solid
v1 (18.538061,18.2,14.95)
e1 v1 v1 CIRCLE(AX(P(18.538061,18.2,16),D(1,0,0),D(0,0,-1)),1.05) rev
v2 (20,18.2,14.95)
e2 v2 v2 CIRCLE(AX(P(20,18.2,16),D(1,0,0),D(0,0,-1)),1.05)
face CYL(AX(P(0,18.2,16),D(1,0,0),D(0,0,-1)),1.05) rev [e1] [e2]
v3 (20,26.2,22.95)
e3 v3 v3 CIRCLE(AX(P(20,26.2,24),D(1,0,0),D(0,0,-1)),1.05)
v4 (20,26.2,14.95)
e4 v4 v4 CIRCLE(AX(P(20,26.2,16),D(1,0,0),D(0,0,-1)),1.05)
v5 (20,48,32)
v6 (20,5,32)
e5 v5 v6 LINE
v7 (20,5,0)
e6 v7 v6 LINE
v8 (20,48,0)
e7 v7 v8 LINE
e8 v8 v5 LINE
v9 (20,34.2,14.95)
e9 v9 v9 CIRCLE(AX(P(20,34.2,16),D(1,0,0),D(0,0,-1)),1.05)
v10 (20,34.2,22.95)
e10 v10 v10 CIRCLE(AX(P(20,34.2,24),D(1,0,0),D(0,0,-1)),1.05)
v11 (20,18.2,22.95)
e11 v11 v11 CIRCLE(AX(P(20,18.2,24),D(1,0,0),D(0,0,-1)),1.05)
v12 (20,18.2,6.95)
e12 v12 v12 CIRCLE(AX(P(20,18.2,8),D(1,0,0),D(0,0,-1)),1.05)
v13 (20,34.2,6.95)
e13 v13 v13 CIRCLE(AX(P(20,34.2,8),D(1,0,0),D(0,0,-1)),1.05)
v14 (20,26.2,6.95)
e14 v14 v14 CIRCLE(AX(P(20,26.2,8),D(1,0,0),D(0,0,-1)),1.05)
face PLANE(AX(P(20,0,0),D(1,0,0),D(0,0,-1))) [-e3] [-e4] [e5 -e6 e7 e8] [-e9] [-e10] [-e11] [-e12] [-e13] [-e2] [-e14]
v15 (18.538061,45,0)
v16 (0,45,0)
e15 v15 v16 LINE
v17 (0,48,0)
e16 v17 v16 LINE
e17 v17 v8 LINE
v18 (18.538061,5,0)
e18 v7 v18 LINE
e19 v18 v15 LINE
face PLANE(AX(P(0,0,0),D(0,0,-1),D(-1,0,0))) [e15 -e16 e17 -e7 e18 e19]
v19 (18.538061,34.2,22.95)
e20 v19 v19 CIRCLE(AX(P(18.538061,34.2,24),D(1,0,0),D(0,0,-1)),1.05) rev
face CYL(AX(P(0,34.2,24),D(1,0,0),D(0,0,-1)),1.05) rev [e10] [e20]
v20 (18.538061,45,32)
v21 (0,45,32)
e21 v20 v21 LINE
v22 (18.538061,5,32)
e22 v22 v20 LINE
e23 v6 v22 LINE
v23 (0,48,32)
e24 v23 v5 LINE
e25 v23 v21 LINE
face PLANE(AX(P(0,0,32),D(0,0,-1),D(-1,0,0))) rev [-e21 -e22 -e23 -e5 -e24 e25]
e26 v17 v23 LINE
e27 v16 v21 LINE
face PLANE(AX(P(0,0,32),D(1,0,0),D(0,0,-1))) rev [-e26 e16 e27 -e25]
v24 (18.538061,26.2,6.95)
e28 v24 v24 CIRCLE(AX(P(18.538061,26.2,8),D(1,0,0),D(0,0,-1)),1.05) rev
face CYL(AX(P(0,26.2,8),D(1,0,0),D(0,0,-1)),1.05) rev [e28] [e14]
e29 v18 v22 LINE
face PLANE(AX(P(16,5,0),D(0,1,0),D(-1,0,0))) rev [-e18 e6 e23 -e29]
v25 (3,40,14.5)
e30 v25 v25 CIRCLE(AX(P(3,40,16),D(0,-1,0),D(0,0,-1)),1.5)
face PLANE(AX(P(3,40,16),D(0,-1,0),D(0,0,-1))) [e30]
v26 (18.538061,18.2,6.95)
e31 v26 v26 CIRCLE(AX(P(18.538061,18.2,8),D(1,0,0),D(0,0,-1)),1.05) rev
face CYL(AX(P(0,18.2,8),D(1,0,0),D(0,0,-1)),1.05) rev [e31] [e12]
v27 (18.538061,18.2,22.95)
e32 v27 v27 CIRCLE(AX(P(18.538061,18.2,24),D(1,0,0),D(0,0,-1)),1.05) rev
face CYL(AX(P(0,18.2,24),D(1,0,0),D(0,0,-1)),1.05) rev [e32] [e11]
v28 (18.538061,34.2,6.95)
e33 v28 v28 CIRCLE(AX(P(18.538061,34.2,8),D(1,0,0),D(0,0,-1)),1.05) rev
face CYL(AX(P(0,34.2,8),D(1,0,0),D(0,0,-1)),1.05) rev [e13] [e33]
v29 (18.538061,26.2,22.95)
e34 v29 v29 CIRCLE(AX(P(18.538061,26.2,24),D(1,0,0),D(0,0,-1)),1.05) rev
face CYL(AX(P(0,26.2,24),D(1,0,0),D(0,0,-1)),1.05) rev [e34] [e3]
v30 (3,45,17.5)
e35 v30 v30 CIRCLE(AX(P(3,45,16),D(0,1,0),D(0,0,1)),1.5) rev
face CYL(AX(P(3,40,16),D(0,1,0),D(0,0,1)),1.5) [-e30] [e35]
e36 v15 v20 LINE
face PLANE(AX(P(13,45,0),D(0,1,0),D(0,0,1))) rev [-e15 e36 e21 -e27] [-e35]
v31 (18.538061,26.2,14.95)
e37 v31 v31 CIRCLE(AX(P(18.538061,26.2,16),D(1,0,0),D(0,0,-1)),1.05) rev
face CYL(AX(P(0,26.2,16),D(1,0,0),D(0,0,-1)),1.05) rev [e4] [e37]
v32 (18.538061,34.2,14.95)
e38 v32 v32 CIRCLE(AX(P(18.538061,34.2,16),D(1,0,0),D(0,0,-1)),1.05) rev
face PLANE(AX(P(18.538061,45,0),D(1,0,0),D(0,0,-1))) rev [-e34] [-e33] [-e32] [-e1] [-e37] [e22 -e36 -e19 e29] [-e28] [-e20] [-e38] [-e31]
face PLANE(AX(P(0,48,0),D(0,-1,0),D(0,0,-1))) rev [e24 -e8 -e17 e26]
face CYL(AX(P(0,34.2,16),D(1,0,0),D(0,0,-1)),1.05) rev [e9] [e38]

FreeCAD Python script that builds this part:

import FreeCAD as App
import Part
import Sketcher


def add_polygon(sketch, points):
    """Adds a closed chain of lines whose ends are joined by coincident constraints."""
    first, n = sketch.GeometryCount, len(points)
    for a, b in zip(points, points[1:] + points[:1]):
        sketch.addGeometry(Part.LineSegment(App.Vector(*a, 0), App.Vector(*b, 0)), False)
    for i in range(n):
        sketch.addConstraint(Sketcher.Constraint("Coincident", first + i, 2, first + (i + 1) % n, 1))

doc = App.newDocument("Part")
body = doc.addObject("PartDesign::Body", "Body")

# Sketch on XY plane
sketch1 = body.newObject("Sketcher::SketchObject", "Sketch")
sketch1.AttachmentSupport = (doc.getObject("XY_Plane"), [""])
sketch1.MapMode = "FlatFace"
add_polygon(sketch1, [(0, 40), (0, 0), (15, 0), (15, 40)])  # lines 0-3
sketch1.addConstraint([
    Sketcher.Constraint("Vertical", 0),
    Sketcher.Constraint("Horizontal", 1),
    Sketcher.Constraint("Vertical", 2),
    Sketcher.Constraint("Horizontal", 3),
    Sketcher.Constraint("Coincident", 0, 2, -1, 1),
    Sketcher.Constraint("DistanceX", 1, 1, 1, 2, 15.0),
    Sketcher.Constraint("DistanceY", 0, 2, 0, 1, 40.0),
])
pad1 = body.newObject("PartDesign::Pad", "Pad")
pad1.Profile = sketch1
pad1.Length = 32

# Sketch on XZ plane
sketch2 = body.newObject("Sketcher::SketchObject", "Sketch001")
sketch2.AttachmentSupport = (doc.getObject("XZ_Plane"), [""])
sketch2.MapMode = "FlatFace"
sketch2.AttachmentOffset = App.Placement(App.Vector(0, 0, -40), App.Rotation())
add_polygon(sketch2, [(0, 0), (0, 32), (15, 32), (15, 0)])  # lines 0-3
sketch2.addConstraint([
    Sketcher.Constraint("Vertical", 0),
    Sketcher.Constraint("Horizontal", 1),
    Sketcher.Constraint("Vertical", 2),
    Sketcher.Constraint("Horizontal", 3),
    Sketcher.Constraint("Coincident", 3, 2, -1, 1),
    Sketcher.Constraint("DistanceX", 1, 1, 1, 2, 15.0),
    Sketcher.Constraint("DistanceY", 0, 1, 0, 2, 32.0),
])
pad2 = body.newObject("PartDesign::Pad", "Pad001")
pad2.Profile = sketch2
pad2.Length = 10
pad2.Reversed = True

# Sketch on XY plane
sketch3 = body.newObject("Sketcher::SketchObject", "Sketch002")
sketch3.AttachmentSupport = (doc.getObject("XY_Plane"), [""])
sketch3.MapMode = "FlatFace"
sketch3.AttachmentOffset = App.Placement(App.Vector(0, 0, 32), App.Rotation())
add_polygon(sketch3, [(0, 45), (0, 0), (13, 0), (13, 45)])  # lines 0-3
sketch3.addConstraint([
    Sketcher.Constraint("Vertical", 0),
    Sketcher.Constraint("Horizontal", 1),
    Sketcher.Constraint("Vertical", 2),
    Sketcher.Constraint("Horizontal", 3),
    Sketcher.Constraint("Coincident", 0, 2, -1, 1),
    Sketcher.Constraint("DistanceX", 1, 1, 1, 2, 13.0),
    Sketcher.Constraint("DistanceY", 0, 2, 0, 1, 45.0),
])
pocket1 = body.newObject("PartDesign::Pocket", "Pocket")
pocket1.Profile = sketch3
pocket1.Type = "ThroughAll"

# Sketch on YZ plane
sketch4 = body.newObject("Sketcher::SketchObject", "Sketch003")
sketch4.AttachmentSupport = (doc.getObject("YZ_Plane"), [""])
sketch4.MapMode = "FlatFace"
sketch4.AttachmentOffset = App.Placement(App.Vector(0, 0, 15), App.Rotation())
add_polygon(sketch4, [(50, 32), (0, 32), (0, 0), (50, 0)])  # lines 0-3
sketch4.addConstraint([
    Sketcher.Constraint("Horizontal", 0),
    Sketcher.Constraint("Vertical", 1),
    Sketcher.Constraint("Horizontal", 2),
    Sketcher.Constraint("Vertical", 3),
    Sketcher.Constraint("Coincident", 1, 2, -1, 1),
    Sketcher.Constraint("DistanceX", 0, 2, 0, 1, 50.0),
    Sketcher.Constraint("DistanceY", 1, 2, 1, 1, 32.0),
])
pad3 = body.newObject("PartDesign::Pad", "Pad002")
pad3.Profile = sketch4
pad3.Length = 5

# Sketch on XY plane
sketch5 = body.newObject("Sketcher::SketchObject", "Sketch004")
sketch5.AttachmentSupport = (doc.getObject("XY_Plane"), [""])
sketch5.MapMode = "FlatFace"
sketch5.AttachmentOffset = App.Placement(App.Vector(0, 0, 32), App.Rotation())
add_polygon(sketch5, [(13, 45), (13, 5), (16, 5), (16, 45)])  # lines 0-3
sketch5.addConstraint([
    Sketcher.Constraint("Vertical", 0),
    Sketcher.Constraint("Horizontal", 1),
    Sketcher.Constraint("Vertical", 2),
    Sketcher.Constraint("Horizontal", 3),
    Sketcher.Constraint("DistanceX", 1, 1, 1, 2, 3.0),
    Sketcher.Constraint("DistanceY", 0, 2, 0, 1, 40.0),
    Sketcher.Constraint("DistanceX", -1, 1, 0, 2, 13.0),
    Sketcher.Constraint("DistanceY", -1, 1, 0, 2, 5.0),
])
pocket2 = body.newObject("PartDesign::Pocket", "Pocket001")
pocket2.Profile = sketch5
pocket2.Type = "ThroughAll"

# Sketch on XY plane
sketch6 = body.newObject("Sketcher::SketchObject", "Sketch005")
sketch6.AttachmentSupport = (doc.getObject("XY_Plane"), [""])
sketch6.MapMode = "FlatFace"
sketch6.AttachmentOffset = App.Placement(App.Vector(0, 0, 32), App.Rotation())
add_polygon(sketch6, [(13, 5), (13, 0), (16, 0), (16, 5)])  # lines 0-3
sketch6.addConstraint([
    Sketcher.Constraint("Vertical", 0),
    Sketcher.Constraint("Horizontal", 1),
    Sketcher.Constraint("Vertical", 2),
    Sketcher.Constraint("Horizontal", 3),
    Sketcher.Constraint("PointOnObject", 0, 2, -1),
    Sketcher.Constraint("DistanceX", 1, 1, 1, 2, 3.0),
    Sketcher.Constraint("DistanceY", 0, 2, 0, 1, 5.0),
    Sketcher.Constraint("DistanceX", -1, 1, 0, 2, 13.0),
])
pocket3 = body.newObject("PartDesign::Pocket", "Pocket002")
pocket3.Profile = sketch6
pocket3.Type = "ThroughAll"

# Sketch on XZ plane
sketch7 = body.newObject("Sketcher::SketchObject", "Sketch006")
sketch7.AttachmentSupport = (doc.getObject("XZ_Plane"), [""])
sketch7.MapMode = "FlatFace"
sketch7.AttachmentOffset = App.Placement(App.Vector(0, 0, -45), App.Rotation())
sketch7.addGeometry(Part.Circle(App.Vector(3, 16, 0), App.Vector(0, 0, 1), 1.5), False)
sketch7.addConstraint([
    Sketcher.Constraint("Diameter", 0, 3.0),
    Sketcher.Constraint("DistanceX", -1, 1, 0, 3, 3.0),
    Sketcher.Constraint("DistanceY", -1, 1, 0, 3, 16.0),
])
pad4 = body.newObject("PartDesign::Pad", "Pad003")
pad4.Profile = sketch7
pad4.Length = 5

# Sketch on YZ plane
sketch8 = body.newObject("Sketcher::SketchObject", "Sketch007")
sketch8.AttachmentSupport = (doc.getObject("YZ_Plane"), [""])
sketch8.MapMode = "FlatFace"
sketch8.AttachmentOffset = App.Placement(App.Vector(0, 0, 20), App.Rotation())
sketch8.addGeometry([
    Part.Circle(App.Vector(34.2, 24, 0), App.Vector(0, 0, 1), 1.1),  # 0
    Part.Circle(App.Vector(26.2, 24, 0), App.Vector(0, 0, 1), 1.1),  # 1
    Part.Circle(App.Vector(18.2, 24, 0), App.Vector(0, 0, 1), 1.1),  # 2
    Part.Circle(App.Vector(34.2, 16, 0), App.Vector(0, 0, 1), 1.1),  # 3
    Part.Circle(App.Vector(26.2, 16, 0), App.Vector(0, 0, 1), 1.1),  # 4
    Part.Circle(App.Vector(18.2, 16, 0), App.Vector(0, 0, 1), 1.1),  # 5
    Part.Circle(App.Vector(18.2, 8, 0), App.Vector(0, 0, 1), 1.1),  # 6
    Part.Circle(App.Vector(26.2, 8, 0), App.Vector(0, 0, 1), 1.1),  # 7
    Part.Circle(App.Vector(34.2, 8, 0), App.Vector(0, 0, 1), 1.1),  # 8
], False)
sketch8.addConstraint([
    Sketcher.Constraint("Equal", 0, 1),
    Sketcher.Constraint("Equal", 1, 2),
    Sketcher.Constraint("Equal", 2, 3),
    Sketcher.Constraint("Equal", 3, 4),
    Sketcher.Constraint("Equal", 4, 5),
    Sketcher.Constraint("Equal", 5, 6),
    Sketcher.Constraint("Equal", 6, 7),
    Sketcher.Constraint("Equal", 7, 8),
    Sketcher.Constraint("Horizontal", 0, 3, 1, 3),
    Sketcher.Constraint("Horizontal", 1, 3, 2, 3),
    Sketcher.Constraint("Horizontal", 3, 3, 4, 3),
    Sketcher.Constraint("Horizontal", 4, 3, 5, 3),
    Sketcher.Constraint("Horizontal", 6, 3, 7, 3),
    Sketcher.Constraint("Horizontal", 7, 3, 8, 3),
    Sketcher.Constraint("Vertical", 0, 3, 3, 3),
    Sketcher.Constraint("Vertical", 1, 3, 4, 3),
    Sketcher.Constraint("Vertical", 2, 3, 5, 3),
    Sketcher.Constraint("Vertical", 5, 3, 6, 3),
    Sketcher.Constraint("Vertical", 4, 3, 7, 3),
    Sketcher.Constraint("Vertical", 3, 3, 8, 3),
    Sketcher.Constraint("Diameter", 0, 2.1),
    Sketcher.Constraint("DistanceY", -1, 1, 0, 3, 24.0),
    Sketcher.Constraint("DistanceY", -1, 1, 3, 3, 16.0),
    Sketcher.Constraint("DistanceY", -1, 1, 6, 3, 8.0),
    Sketcher.Constraint("DistanceX", 1, 3, 0, 3, 8.0),
    Sketcher.Constraint("DistanceX", 2, 3, 1, 3, 8.0),
    Sketcher.Constraint("DistanceX", -1, 1, 0, 3, 34.2),
])
pocket4 = body.newObject("PartDesign::Pocket", "Pocket003")
pocket4.Profile = sketch8
pocket4.Type = "ThroughAll"

# Sketch on XY plane
sketch9 = body.newObject("Sketcher::SketchObject", "Sketch008")
sketch9.AttachmentSupport = (doc.getObject("XY_Plane"), [""])
sketch9.MapMode = "FlatFace"
sketch9.AttachmentOffset = App.Placement(App.Vector(0, 0, 32), App.Rotation())
add_polygon(sketch9, [(16, 5), (16, 0), (20, 0), (20, 5)])  # lines 0-3
sketch9.addConstraint([
    Sketcher.Constraint("Vertical", 0),
    Sketcher.Constraint("Horizontal", 1),
    Sketcher.Constraint("Vertical", 2),
    Sketcher.Constraint("Horizontal", 3),
    Sketcher.Constraint("PointOnObject", 0, 2, -1),
    Sketcher.Constraint("DistanceX", 1, 1, 1, 2, 4.0),
    Sketcher.Constraint("DistanceY", 0, 2, 0, 1, 5.0),
    Sketcher.Constraint("DistanceX", -1, 1, 0, 2, 16.0),
])
pocket5 = body.newObject("PartDesign::Pocket", "Pocket004")
pocket5.Profile = sketch9
pocket5.Type = "ThroughAll"

# Sketch on XY plane
sketch10 = body.newObject("Sketcher::SketchObject", "Sketch009")
sketch10.AttachmentSupport = (doc.getObject("XY_Plane"), [""])
sketch10.MapMode = "FlatFace"
sketch10.AttachmentOffset = App.Placement(App.Vector(0, 0, 32), App.Rotation())
add_polygon(sketch10, [(16, 45), (16, 5), (18.5, 5), (18.5, 45)])  # lines 0-3
sketch10.addConstraint([
    Sketcher.Constraint("Vertical", 0),
    Sketcher.Constraint("Horizontal", 1),
    Sketcher.Constraint("Vertical", 2),
    Sketcher.Constraint("Horizontal", 3),
    Sketcher.Constraint("DistanceY", 0, 2, 0, 1, 40.0),
    Sketcher.Constraint("DistanceX", -1, 1, 0, 2, 16.0),
    Sketcher.Constraint("DistanceY", -1, 1, 0, 2, 5.0),
    Sketcher.Constraint("DistanceX", 1, 1, 1, 2, 2.538061),
])
pocket6 = body.newObject("PartDesign::Pocket", "Pocket005")
pocket6.Profile = sketch10
pocket6.Type = "ThroughAll"

# Sketch on XY plane
sketch11 = body.newObject("Sketcher::SketchObject", "Sketch010")
sketch11.AttachmentSupport = (doc.getObject("XY_Plane"), [""])
sketch11.MapMode = "FlatFace"
sketch11.AttachmentOffset = App.Placement(App.Vector(0, 0, 32), App.Rotation())
add_polygon(sketch11, [(0, 50), (0, 48), (20, 48), (20, 50)])  # lines 0-3
sketch11.addConstraint([
    Sketcher.Constraint("Vertical", 0),
    Sketcher.Constraint("Horizontal", 1),
    Sketcher.Constraint("Vertical", 2),
    Sketcher.Constraint("Horizontal", 3),
    Sketcher.Constraint("PointOnObject", 0, 2, -2),
    Sketcher.Constraint("DistanceX", 1, 1, 1, 2, 20.0),
    Sketcher.Constraint("DistanceY", 0, 2, 0, 1, 2.0),
    Sketcher.Constraint("DistanceY", -1, 1, 0, 2, 48.0),
])
pocket7 = body.newObject("PartDesign::Pocket", "Pocket006")
pocket7.Profile = sketch11
pocket7.Type = "ThroughAll"

doc.recompute()
